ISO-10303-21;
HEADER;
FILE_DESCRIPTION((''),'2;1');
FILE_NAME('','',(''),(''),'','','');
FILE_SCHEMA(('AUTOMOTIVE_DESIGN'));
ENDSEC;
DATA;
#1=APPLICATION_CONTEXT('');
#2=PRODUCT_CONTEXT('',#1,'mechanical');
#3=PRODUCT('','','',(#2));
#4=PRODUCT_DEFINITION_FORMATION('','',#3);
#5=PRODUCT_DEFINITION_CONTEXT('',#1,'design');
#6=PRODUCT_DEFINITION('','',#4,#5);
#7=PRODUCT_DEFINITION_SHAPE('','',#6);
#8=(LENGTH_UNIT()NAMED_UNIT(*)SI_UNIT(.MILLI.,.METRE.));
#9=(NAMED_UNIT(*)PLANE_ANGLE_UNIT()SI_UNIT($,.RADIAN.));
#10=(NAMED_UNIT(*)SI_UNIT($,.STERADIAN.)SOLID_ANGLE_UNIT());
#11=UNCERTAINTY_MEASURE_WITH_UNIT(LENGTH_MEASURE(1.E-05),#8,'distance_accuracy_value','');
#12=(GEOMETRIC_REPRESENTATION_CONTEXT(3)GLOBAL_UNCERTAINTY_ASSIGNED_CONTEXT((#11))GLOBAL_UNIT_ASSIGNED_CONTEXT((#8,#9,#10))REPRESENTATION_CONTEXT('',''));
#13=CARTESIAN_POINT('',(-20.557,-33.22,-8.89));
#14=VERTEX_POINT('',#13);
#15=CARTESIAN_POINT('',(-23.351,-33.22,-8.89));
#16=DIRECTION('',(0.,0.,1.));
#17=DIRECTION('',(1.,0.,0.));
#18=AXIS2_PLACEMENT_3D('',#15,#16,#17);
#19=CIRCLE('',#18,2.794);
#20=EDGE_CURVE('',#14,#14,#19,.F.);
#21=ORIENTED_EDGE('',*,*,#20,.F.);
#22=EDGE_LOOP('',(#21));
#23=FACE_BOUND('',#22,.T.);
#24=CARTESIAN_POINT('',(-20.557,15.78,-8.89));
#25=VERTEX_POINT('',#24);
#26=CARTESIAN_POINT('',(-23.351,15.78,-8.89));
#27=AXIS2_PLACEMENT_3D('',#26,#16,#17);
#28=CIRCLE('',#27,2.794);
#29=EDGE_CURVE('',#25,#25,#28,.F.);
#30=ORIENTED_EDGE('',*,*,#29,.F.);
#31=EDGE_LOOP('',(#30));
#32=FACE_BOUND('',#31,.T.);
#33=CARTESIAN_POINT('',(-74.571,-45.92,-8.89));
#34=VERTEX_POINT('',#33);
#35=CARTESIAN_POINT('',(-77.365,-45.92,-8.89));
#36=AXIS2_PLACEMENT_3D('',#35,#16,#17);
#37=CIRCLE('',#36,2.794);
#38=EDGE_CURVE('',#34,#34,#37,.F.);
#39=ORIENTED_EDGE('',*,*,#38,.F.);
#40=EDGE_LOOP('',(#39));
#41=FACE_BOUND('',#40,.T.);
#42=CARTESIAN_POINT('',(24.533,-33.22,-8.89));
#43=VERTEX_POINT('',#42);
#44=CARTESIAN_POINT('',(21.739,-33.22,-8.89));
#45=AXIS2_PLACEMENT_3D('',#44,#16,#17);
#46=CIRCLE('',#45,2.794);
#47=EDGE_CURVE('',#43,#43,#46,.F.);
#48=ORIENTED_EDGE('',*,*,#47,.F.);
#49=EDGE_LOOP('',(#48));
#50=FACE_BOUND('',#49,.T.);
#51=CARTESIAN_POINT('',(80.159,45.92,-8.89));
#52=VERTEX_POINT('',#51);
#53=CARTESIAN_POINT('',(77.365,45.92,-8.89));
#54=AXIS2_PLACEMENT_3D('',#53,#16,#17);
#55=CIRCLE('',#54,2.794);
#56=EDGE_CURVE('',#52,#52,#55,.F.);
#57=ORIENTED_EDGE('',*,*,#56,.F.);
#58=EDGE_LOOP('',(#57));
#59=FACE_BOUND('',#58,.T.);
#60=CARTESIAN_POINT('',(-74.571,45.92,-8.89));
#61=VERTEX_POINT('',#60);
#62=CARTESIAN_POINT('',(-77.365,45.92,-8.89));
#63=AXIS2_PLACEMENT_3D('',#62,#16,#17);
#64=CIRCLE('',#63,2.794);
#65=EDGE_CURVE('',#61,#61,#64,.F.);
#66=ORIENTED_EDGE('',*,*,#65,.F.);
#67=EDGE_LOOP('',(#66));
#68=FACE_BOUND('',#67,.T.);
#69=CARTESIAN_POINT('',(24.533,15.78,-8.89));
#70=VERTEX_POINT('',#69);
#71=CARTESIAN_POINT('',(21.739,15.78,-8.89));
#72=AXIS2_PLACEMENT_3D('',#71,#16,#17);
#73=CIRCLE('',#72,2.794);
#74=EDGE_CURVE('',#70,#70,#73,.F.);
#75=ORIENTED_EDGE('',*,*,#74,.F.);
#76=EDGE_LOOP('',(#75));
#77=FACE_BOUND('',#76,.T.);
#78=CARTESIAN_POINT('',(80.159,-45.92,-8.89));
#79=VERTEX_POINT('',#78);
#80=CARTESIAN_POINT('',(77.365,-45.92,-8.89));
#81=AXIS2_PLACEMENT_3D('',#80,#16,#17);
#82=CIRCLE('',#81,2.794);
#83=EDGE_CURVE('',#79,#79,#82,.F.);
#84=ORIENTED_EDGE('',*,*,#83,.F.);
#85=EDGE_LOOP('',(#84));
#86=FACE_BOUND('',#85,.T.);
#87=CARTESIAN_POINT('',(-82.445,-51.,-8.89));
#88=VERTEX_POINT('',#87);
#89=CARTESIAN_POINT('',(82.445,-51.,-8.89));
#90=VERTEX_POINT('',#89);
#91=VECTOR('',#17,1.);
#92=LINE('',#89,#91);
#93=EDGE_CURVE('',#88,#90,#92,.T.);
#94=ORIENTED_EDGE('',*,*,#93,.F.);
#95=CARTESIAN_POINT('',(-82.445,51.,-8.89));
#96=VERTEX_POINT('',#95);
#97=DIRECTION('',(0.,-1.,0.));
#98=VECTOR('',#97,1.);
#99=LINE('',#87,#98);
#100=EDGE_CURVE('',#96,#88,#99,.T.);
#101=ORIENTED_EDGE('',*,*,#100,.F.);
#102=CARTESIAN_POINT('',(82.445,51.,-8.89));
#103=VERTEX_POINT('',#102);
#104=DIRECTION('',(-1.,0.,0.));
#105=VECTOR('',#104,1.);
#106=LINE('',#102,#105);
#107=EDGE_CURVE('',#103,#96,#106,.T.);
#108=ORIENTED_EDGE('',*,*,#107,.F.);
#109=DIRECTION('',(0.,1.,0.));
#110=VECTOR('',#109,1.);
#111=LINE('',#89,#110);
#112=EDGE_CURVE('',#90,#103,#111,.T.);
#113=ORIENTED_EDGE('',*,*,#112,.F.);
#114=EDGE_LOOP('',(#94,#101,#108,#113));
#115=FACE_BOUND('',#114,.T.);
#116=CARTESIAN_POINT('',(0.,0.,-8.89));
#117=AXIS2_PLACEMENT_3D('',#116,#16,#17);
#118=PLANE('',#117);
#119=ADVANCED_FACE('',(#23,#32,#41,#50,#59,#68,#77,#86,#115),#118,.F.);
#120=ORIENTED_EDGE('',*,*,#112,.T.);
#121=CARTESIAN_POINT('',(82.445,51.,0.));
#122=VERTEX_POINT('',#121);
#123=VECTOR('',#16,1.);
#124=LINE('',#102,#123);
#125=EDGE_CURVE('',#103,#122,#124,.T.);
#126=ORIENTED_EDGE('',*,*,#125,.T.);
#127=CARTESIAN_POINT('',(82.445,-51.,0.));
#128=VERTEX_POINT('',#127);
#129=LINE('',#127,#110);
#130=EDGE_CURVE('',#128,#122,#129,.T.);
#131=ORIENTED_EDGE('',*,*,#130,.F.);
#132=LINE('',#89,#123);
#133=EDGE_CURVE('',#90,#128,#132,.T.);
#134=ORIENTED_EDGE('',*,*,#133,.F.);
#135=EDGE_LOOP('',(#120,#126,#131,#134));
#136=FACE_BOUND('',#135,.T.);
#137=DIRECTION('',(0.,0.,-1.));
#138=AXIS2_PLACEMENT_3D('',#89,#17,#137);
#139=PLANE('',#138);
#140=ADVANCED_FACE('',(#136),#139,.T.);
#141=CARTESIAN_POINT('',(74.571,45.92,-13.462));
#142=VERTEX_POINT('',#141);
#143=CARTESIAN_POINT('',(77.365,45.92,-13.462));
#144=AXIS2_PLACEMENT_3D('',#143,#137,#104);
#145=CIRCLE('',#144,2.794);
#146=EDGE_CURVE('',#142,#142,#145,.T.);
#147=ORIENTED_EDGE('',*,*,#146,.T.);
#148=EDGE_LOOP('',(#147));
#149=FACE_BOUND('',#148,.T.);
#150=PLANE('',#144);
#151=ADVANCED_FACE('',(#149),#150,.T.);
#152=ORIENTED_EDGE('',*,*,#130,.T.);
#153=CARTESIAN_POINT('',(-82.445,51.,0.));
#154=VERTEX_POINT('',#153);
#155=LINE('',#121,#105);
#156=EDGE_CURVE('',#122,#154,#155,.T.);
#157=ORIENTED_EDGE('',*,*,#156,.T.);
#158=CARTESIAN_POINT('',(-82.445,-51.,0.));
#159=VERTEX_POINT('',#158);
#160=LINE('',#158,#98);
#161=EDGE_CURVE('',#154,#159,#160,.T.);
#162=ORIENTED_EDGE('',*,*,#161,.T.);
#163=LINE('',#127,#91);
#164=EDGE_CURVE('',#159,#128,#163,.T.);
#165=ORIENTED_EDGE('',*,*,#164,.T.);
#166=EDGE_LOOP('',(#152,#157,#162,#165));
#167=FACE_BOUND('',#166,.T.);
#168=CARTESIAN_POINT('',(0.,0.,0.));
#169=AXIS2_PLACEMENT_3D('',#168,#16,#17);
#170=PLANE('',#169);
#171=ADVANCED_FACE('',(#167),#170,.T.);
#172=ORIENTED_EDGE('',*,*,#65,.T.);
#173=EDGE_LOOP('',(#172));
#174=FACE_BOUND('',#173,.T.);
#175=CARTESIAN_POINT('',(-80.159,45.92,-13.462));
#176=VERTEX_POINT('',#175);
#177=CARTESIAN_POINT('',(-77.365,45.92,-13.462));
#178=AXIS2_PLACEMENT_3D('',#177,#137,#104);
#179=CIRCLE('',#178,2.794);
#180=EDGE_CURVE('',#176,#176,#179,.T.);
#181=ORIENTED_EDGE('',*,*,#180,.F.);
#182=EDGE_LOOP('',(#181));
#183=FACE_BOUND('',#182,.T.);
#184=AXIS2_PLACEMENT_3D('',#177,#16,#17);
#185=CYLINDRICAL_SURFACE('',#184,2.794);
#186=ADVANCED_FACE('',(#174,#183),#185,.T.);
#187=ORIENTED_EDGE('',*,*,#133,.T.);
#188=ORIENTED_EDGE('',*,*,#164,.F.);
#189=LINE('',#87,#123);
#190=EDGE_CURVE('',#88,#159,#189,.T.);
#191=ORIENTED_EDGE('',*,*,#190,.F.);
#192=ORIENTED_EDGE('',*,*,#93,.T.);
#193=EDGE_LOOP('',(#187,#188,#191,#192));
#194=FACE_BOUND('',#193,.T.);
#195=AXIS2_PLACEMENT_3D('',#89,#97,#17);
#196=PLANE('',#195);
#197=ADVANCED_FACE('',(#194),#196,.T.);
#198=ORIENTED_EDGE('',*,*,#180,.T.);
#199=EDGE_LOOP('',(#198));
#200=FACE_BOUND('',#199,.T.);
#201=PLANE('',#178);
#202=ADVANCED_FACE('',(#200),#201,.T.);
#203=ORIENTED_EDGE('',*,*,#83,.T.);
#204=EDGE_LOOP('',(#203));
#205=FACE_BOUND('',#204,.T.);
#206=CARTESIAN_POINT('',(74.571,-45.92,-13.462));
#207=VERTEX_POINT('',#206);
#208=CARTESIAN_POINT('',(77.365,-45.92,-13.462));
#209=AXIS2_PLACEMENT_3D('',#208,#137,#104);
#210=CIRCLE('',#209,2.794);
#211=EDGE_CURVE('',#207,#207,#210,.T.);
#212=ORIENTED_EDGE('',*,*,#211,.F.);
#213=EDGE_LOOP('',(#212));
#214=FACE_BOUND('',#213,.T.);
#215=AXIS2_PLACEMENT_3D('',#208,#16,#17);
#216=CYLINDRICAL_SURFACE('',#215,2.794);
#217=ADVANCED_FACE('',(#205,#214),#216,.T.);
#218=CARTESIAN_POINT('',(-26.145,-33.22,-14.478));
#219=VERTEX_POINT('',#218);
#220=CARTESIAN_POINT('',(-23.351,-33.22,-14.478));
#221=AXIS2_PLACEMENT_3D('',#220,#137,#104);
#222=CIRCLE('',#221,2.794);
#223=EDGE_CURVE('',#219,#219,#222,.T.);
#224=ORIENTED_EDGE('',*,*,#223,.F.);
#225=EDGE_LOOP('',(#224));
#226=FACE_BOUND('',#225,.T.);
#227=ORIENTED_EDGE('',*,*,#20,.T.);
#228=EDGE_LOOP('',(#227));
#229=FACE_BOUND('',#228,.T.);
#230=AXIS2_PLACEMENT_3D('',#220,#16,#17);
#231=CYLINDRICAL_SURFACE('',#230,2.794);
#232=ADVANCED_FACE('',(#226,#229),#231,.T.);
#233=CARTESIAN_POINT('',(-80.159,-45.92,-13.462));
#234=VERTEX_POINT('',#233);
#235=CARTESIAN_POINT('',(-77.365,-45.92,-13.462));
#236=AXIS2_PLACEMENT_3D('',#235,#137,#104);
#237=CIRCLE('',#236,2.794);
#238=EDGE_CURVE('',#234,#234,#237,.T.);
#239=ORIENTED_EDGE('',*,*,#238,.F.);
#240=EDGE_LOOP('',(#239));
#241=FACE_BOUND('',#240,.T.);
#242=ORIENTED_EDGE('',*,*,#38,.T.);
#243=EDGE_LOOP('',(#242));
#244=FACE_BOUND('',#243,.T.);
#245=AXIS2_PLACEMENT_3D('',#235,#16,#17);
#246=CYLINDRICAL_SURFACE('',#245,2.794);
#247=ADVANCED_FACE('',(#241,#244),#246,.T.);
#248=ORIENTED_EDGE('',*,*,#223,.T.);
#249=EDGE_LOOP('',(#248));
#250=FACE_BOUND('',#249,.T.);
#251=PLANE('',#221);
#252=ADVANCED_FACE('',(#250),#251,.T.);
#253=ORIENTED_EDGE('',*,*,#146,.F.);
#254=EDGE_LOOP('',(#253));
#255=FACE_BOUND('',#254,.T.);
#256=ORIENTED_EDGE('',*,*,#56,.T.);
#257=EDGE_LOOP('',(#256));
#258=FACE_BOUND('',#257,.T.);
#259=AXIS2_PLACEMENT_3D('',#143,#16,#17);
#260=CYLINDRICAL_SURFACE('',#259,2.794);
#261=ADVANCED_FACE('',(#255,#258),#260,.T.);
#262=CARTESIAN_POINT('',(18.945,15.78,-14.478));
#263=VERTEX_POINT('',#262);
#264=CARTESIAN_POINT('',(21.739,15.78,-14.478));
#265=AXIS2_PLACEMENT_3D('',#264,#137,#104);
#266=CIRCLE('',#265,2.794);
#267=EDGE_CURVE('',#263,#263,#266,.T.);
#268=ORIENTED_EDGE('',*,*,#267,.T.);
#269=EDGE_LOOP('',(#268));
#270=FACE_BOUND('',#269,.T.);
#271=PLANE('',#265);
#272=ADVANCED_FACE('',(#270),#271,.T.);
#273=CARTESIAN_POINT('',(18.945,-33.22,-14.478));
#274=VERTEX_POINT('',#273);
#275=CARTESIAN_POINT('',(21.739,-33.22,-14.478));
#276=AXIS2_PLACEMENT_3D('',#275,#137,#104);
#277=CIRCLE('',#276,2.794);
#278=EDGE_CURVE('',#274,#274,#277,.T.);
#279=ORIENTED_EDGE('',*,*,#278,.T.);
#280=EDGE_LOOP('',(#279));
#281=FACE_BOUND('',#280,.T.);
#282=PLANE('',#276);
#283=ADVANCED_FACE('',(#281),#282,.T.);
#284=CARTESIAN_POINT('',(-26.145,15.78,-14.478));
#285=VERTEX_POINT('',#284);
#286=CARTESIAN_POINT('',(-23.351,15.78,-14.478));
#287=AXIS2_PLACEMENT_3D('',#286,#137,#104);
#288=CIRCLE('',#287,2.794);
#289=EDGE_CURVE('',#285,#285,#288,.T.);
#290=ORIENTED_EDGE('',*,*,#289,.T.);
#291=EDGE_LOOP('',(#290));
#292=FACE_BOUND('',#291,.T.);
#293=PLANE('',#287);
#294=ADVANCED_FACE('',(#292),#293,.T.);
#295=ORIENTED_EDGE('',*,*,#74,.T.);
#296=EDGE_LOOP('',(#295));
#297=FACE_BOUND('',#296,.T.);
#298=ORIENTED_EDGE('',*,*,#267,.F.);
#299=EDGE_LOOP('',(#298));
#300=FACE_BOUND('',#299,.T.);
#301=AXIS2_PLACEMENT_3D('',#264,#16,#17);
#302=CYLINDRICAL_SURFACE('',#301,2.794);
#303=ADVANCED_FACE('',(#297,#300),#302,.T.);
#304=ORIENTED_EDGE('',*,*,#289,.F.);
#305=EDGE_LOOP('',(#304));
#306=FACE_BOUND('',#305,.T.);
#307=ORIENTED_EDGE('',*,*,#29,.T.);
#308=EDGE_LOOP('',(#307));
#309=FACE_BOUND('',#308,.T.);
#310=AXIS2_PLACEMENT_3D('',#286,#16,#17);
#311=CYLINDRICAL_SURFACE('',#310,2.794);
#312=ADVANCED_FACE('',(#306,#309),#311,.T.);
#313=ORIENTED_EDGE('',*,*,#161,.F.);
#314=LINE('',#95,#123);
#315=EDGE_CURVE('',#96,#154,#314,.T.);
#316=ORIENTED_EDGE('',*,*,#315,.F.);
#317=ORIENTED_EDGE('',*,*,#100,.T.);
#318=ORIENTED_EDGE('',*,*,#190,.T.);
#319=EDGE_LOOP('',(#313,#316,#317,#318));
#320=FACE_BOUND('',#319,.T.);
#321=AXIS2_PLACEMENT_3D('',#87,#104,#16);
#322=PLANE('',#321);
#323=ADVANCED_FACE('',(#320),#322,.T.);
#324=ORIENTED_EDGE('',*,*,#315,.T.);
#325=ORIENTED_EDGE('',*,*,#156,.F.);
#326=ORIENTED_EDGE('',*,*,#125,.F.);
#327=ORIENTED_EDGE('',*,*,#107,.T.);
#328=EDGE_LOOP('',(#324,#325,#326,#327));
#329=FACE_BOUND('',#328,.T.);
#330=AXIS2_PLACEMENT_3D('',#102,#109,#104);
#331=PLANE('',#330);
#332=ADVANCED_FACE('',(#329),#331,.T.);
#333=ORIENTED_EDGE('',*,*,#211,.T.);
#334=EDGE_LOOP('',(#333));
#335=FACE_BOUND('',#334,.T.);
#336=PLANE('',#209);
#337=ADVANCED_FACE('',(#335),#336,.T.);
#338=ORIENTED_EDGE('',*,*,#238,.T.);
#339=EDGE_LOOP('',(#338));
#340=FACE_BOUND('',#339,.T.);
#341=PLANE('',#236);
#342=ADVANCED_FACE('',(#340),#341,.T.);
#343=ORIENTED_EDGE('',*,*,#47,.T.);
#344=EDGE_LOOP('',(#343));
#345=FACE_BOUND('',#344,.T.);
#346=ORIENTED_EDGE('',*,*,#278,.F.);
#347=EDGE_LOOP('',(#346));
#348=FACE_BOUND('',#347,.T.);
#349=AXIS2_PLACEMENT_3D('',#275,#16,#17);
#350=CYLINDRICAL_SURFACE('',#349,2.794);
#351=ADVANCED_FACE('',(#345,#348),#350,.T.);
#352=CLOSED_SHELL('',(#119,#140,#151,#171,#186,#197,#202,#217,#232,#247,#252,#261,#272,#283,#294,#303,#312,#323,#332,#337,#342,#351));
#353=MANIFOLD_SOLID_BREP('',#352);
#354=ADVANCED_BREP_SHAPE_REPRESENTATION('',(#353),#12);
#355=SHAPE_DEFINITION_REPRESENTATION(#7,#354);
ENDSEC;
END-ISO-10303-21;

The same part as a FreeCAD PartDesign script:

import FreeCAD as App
import Part
import Sketcher

V = App.Vector
Q = App.Units.Quantity

doc = App.newDocument("Part")
body = doc.addObject("PartDesign::Body", "Body")

sketch1 = body.newObject("Sketcher::SketchObject", "Sketch")
sketch1.AttachmentSupport = (doc.getObject("XY_Plane"), [""])
sketch1.MapMode = "FlatFace"
sketch1.addGeometry(Part.LineSegment(V(-82.445, 51, 0), V(-82.445, -51, 0)), False)
sketch1.addGeometry(Part.LineSegment(V(-82.445, -51, 0), V(82.445, -51, 0)), False)
sketch1.addGeometry(Part.LineSegment(V(82.445, -51, 0), V(82.445, 51, 0)), False)
sketch1.addGeometry(Part.LineSegment(V(82.445, 51, 0), V(-82.445, 51, 0)), False)
sketch1.addConstraint(Sketcher.Constraint("Coincident", 0, 2, 1, 1))
sketch1.addConstraint(Sketcher.Constraint("Coincident", 1, 2, 2, 1))
sketch1.addConstraint(Sketcher.Constraint("Coincident", 2, 2, 3, 1))
sketch1.addConstraint(Sketcher.Constraint("Coincident", 3, 2, 0, 1))
sketch1.addConstraint(Sketcher.Constraint("Vertical", 0))
sketch1.addConstraint(Sketcher.Constraint("Horizontal", 1))
sketch1.addConstraint(Sketcher.Constraint("Vertical", 2))
sketch1.addConstraint(Sketcher.Constraint("Horizontal", 3))
sketch1.addConstraint(Sketcher.Constraint("Symmetric", 0, 2, 2, 2, -1, 1))
sketch1.addConstraint(Sketcher.Constraint("DistanceX", 1, 1, 1, 2, 164.89))
sketch1.addConstraint(Sketcher.Constraint("DistanceY", 0, 2, 0, 1, 102.0))
pad1 = body.newObject("PartDesign::Pad", "Pad")
pad1.Profile = sketch1
pad1.Length = Q("0.35 in")
pad1.Reversed = True

sketch2 = body.newObject("Sketcher::SketchObject", "Sketch001")
sketch2.AttachmentSupport = (doc.getObject("XY_Plane"), [""])
sketch2.MapMode = "FlatFace"
sketch2.AttachmentOffset = App.Placement(V(0, 0, -0.35 * 25.4), App.Rotation())
sketch2.addGeometry(Part.Circle(V(77.365, 45.92, 0), V(0, 0, 1), 2.794), False)
sketch2.addGeometry(Part.Circle(V(-77.365, 45.92, 0), V(0, 0, 1), 2.794), False)
sketch2.addGeometry(Part.Circle(V(77.365, -45.92, 0), V(0, 0, 1), 2.794), False)
sketch2.addGeometry(Part.Circle(V(-77.365, -45.92, 0), V(0, 0, 1), 2.794), False)
sketch2.addConstraint(Sketcher.Constraint("Equal", 0, 1))
sketch2.addConstraint(Sketcher.Constraint("Equal", 1, 2))
sketch2.addConstraint(Sketcher.Constraint("Equal", 2, 3))
sketch2.addConstraint(Sketcher.Constraint("Symmetric", 1, 3, 2, 3, -1, 1))
sketch2.addConstraint(Sketcher.Constraint("Symmetric", 0, 3, 3, 3, -1, 1))
sketch2.addConstraint(Sketcher.Constraint("Symmetric", 0, 3, 1, 3, -2))
sketch2.addConstraint(Sketcher.Constraint("Diameter", 0, Q("0.22 in")))
sketch2.addConstraint(Sketcher.Constraint("DistanceX", -1, 1, 0, 3, 77.365))
sketch2.addConstraint(Sketcher.Constraint("DistanceY", -1, 1, 0, 3, 45.92))
pad2 = body.newObject("PartDesign::Pad", "Pad001")
pad2.Profile = sketch2
pad2.Length = Q("0.18 in")
pad2.Reversed = True

sketch3 = body.newObject("Sketcher::SketchObject", "Sketch002")
sketch3.AttachmentSupport = (doc.getObject("XY_Plane"), [""])
sketch3.MapMode = "FlatFace"
sketch3.AttachmentOffset = App.Placement(V(0, 0, -0.35 * 25.4), App.Rotation())
sketch3.addGeometry(Part.Circle(V(21.739, 15.78, 0), V(0, 0, 1), 2.794), False)
sketch3.addGeometry(Part.Circle(V(21.739, -33.22, 0), V(0, 0, 1), 2.794), False)
sketch3.addGeometry(Part.Circle(V(-23.351, -33.22, 0), V(0, 0, 1), 2.794), False)
sketch3.addGeometry(Part.Circle(V(-23.351, 15.78, 0), V(0, 0, 1), 2.794), False)
sketch3.addConstraint(Sketcher.Constraint("Equal", 0, 1))
sketch3.addConstraint(Sketcher.Constraint("Equal", 1, 2))
sketch3.addConstraint(Sketcher.Constraint("Equal", 2, 3))
sketch3.addConstraint(Sketcher.Constraint("Horizontal", 1, 3, 2, 3))
sketch3.addConstraint(Sketcher.Constraint("Horizontal", 0, 3, 3, 3))
sketch3.addConstraint(Sketcher.Constraint("Vertical", 0, 3, 1, 3))
sketch3.addConstraint(Sketcher.Constraint("Vertical", 2, 3, 3, 3))
sketch3.addConstraint(Sketcher.Constraint("Diameter", 0, Q("0.22 in")))
sketch3.addConstraint(Sketcher.Constraint("DistanceX", -1, 1, 0, 3, 21.739))
sketch3.addConstraint(Sketcher.Constraint("DistanceY", -1, 1, 0, 3, 15.78))
sketch3.addConstraint(Sketcher.Constraint("DistanceY", 1, 3, -1, 1, 33.22))
sketch3.addConstraint(Sketcher.Constraint("DistanceX", 2, 3, -1, 1, 23.351))
pad3 = body.newObject("PartDesign::Pad", "Pad002")
pad3.Profile = sketch3
pad3.Length = Q("0.22 in")
pad3.Reversed = True

doc.recompute()
